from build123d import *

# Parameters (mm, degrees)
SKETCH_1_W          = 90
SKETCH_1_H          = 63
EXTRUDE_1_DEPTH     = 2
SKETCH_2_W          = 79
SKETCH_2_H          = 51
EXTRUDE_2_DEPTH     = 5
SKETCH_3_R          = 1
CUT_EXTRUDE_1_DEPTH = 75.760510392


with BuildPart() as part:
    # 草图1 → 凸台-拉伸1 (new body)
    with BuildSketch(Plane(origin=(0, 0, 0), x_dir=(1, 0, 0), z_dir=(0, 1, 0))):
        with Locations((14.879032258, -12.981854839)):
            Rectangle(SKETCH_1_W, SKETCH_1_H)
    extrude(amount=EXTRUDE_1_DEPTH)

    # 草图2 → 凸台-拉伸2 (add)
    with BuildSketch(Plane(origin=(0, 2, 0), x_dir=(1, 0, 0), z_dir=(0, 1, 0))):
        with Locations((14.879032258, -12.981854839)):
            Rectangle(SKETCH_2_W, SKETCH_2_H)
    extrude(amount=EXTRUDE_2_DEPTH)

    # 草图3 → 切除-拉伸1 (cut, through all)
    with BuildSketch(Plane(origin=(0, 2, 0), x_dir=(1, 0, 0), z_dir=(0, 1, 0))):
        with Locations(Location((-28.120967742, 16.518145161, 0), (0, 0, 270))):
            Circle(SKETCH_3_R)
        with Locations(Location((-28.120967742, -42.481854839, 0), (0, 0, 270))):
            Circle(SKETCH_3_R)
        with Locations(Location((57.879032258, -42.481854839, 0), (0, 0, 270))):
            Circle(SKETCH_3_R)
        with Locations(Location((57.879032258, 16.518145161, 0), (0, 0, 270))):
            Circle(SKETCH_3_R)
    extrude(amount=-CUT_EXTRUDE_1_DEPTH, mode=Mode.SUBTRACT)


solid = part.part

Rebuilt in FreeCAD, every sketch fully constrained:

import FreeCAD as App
import Part
import Sketcher

V = App.Vector
Q = App.Units.Quantity

doc = App.newDocument("Part")
body = doc.addObject("PartDesign::Body", "Body")

sketch1 = body.newObject("Sketcher::SketchObject", "Sketch")
sketch1.AttachmentSupport = (doc.getObject("XZ_Plane"), [""])
sketch1.MapMode = "FlatFace"
sketch1.addGeometry([
    Part.LineSegment(V(-30.120968, -18.518145, 0), V(-30.120968, 44.481855, 0)),
    Part.LineSegment(V(-30.120968, 44.481855, 0), V(59.879032, 44.481855, 0)),
    Part.LineSegment(V(59.879032, 44.481855, 0), V(59.879032, -18.518145, 0)),
    Part.LineSegment(V(59.879032, -18.518145, 0), V(-30.120968, -18.518145, 0)),
], False)
sketch1.addConstraint([
    Sketcher.Constraint("Coincident", 0, 2, 1, 1),
    Sketcher.Constraint("Coincident", 1, 2, 2, 1),
    Sketcher.Constraint("Coincident", 2, 2, 3, 1),
    Sketcher.Constraint("Coincident", 3, 2, 0, 1),
    Sketcher.Constraint("Vertical", 0),
    Sketcher.Constraint("Horizontal", 1),
    Sketcher.Constraint("Vertical", 2),
    Sketcher.Constraint("Horizontal", 3),
    Sketcher.Constraint("DistanceX", 1, 1, 1, 2, Q("90 mm")),
    Sketcher.Constraint("DistanceY", 0, 1, 0, 2, Q("63 mm")),
    Sketcher.Constraint("DistanceX", 0, 2, -1, 1, Q("30.120968 mm")),
    Sketcher.Constraint("DistanceY", -1, 1, 0, 2, Q("44.481855 mm")),
])
pad1 = body.newObject("PartDesign::Pad", "Pad")
pad1.Profile = sketch1
pad1.Length = 2
pad1.Reversed = True

sketch2 = body.newObject("Sketcher::SketchObject", "Sketch001")
sketch2.AttachmentSupport = (doc.getObject("XZ_Plane"), [""])
sketch2.MapMode = "FlatFace"
sketch2.AttachmentOffset = App.Placement(V(0, 0, -2), App.Rotation())
sketch2.addGeometry([
    Part.LineSegment(V(-24.620968, -12.518145, 0), V(-24.620968, 38.481855, 0)),
    Part.LineSegment(V(-24.620968, 38.481855, 0), V(54.379032, 38.481855, 0)),
    Part.LineSegment(V(54.379032, 38.481855, 0), V(54.379032, -12.518145, 0)),
    Part.LineSegment(V(54.379032, -12.518145, 0), V(-24.620968, -12.518145, 0)),
], False)
sketch2.addConstraint([
    Sketcher.Constraint("Coincident", 0, 2, 1, 1),
    Sketcher.Constraint("Coincident", 1, 2, 2, 1),
    Sketcher.Constraint("Coincident", 2, 2, 3, 1),
    Sketcher.Constraint("Coincident", 3, 2, 0, 1),
    Sketcher.Constraint("Vertical", 0),
    Sketcher.Constraint("Horizontal", 1),
    Sketcher.Constraint("Vertical", 2),
    Sketcher.Constraint("Horizontal", 3),
    Sketcher.Constraint("DistanceX", 1, 1, 1, 2, Q("79 mm")),
    Sketcher.Constraint("DistanceY", 0, 1, 0, 2, Q("51 mm")),
    Sketcher.Constraint("DistanceX", 0, 2, -1, 1, Q("24.620968 mm")),
    Sketcher.Constraint("DistanceY", -1, 1, 0, 2, Q("38.481855 mm")),
])
pad2 = body.newObject("PartDesign::Pad", "Pad001")
pad2.Profile = sketch2
pad2.Length = 5
pad2.Reversed = True

sketch3 = body.newObject("Sketcher::SketchObject", "Sketch002")
sketch3.AttachmentSupport = (doc.getObject("XZ_Plane"), [""])
sketch3.MapMode = "FlatFace"
sketch3.AttachmentOffset = App.Placement(V(0, 0, -2), App.Rotation())
sketch3.addGeometry([
    Part.Circle(V(-28.120968, -16.518145, 0), V(0, 0, 1), 1),
    Part.Circle(V(-28.120968, 42.481855, 0), V(0, 0, 1), 1),
    Part.Circle(V(57.879032, 42.481855, 0), V(0, 0, 1), 1),
    Part.Circle(V(57.879032, -16.518145, 0), V(0, 0, 1), 1),
], False)
sketch3.addConstraint([
    Sketcher.Constraint("Equal", 0, 1),
    Sketcher.Constraint("Equal", 1, 2),
    Sketcher.Constraint("Equal", 2, 3),
    Sketcher.Constraint("Horizontal", 1, 3, 2, 3),
    Sketcher.Constraint("Horizontal", 0, 3, 3, 3),
    Sketcher.Constraint("Vertical", 0, 3, 1, 3),
    Sketcher.Constraint("Vertical", 2, 3, 3, 3),
    Sketcher.Constraint("Diameter", 0, Q("2 mm")),
    Sketcher.Constraint("DistanceY", 0, 3, 1, 3, Q("59 mm")),
    Sketcher.Constraint("DistanceX", 1, 3, 2, 3, Q("86 mm")),
    Sketcher.Constraint("DistanceX", 0, 3, -1, 1, Q("28.120968 mm")),
    Sketcher.Constraint("DistanceY", 0, 3, -1, 1, Q("16.518145 mm")),
])
pocket1 = body.newObject("PartDesign::Pocket", "Pocket")
pocket1.Profile = sketch3
pocket1.Type = "ThroughAll"
pocket1.Reversed = True

doc.recompute()
